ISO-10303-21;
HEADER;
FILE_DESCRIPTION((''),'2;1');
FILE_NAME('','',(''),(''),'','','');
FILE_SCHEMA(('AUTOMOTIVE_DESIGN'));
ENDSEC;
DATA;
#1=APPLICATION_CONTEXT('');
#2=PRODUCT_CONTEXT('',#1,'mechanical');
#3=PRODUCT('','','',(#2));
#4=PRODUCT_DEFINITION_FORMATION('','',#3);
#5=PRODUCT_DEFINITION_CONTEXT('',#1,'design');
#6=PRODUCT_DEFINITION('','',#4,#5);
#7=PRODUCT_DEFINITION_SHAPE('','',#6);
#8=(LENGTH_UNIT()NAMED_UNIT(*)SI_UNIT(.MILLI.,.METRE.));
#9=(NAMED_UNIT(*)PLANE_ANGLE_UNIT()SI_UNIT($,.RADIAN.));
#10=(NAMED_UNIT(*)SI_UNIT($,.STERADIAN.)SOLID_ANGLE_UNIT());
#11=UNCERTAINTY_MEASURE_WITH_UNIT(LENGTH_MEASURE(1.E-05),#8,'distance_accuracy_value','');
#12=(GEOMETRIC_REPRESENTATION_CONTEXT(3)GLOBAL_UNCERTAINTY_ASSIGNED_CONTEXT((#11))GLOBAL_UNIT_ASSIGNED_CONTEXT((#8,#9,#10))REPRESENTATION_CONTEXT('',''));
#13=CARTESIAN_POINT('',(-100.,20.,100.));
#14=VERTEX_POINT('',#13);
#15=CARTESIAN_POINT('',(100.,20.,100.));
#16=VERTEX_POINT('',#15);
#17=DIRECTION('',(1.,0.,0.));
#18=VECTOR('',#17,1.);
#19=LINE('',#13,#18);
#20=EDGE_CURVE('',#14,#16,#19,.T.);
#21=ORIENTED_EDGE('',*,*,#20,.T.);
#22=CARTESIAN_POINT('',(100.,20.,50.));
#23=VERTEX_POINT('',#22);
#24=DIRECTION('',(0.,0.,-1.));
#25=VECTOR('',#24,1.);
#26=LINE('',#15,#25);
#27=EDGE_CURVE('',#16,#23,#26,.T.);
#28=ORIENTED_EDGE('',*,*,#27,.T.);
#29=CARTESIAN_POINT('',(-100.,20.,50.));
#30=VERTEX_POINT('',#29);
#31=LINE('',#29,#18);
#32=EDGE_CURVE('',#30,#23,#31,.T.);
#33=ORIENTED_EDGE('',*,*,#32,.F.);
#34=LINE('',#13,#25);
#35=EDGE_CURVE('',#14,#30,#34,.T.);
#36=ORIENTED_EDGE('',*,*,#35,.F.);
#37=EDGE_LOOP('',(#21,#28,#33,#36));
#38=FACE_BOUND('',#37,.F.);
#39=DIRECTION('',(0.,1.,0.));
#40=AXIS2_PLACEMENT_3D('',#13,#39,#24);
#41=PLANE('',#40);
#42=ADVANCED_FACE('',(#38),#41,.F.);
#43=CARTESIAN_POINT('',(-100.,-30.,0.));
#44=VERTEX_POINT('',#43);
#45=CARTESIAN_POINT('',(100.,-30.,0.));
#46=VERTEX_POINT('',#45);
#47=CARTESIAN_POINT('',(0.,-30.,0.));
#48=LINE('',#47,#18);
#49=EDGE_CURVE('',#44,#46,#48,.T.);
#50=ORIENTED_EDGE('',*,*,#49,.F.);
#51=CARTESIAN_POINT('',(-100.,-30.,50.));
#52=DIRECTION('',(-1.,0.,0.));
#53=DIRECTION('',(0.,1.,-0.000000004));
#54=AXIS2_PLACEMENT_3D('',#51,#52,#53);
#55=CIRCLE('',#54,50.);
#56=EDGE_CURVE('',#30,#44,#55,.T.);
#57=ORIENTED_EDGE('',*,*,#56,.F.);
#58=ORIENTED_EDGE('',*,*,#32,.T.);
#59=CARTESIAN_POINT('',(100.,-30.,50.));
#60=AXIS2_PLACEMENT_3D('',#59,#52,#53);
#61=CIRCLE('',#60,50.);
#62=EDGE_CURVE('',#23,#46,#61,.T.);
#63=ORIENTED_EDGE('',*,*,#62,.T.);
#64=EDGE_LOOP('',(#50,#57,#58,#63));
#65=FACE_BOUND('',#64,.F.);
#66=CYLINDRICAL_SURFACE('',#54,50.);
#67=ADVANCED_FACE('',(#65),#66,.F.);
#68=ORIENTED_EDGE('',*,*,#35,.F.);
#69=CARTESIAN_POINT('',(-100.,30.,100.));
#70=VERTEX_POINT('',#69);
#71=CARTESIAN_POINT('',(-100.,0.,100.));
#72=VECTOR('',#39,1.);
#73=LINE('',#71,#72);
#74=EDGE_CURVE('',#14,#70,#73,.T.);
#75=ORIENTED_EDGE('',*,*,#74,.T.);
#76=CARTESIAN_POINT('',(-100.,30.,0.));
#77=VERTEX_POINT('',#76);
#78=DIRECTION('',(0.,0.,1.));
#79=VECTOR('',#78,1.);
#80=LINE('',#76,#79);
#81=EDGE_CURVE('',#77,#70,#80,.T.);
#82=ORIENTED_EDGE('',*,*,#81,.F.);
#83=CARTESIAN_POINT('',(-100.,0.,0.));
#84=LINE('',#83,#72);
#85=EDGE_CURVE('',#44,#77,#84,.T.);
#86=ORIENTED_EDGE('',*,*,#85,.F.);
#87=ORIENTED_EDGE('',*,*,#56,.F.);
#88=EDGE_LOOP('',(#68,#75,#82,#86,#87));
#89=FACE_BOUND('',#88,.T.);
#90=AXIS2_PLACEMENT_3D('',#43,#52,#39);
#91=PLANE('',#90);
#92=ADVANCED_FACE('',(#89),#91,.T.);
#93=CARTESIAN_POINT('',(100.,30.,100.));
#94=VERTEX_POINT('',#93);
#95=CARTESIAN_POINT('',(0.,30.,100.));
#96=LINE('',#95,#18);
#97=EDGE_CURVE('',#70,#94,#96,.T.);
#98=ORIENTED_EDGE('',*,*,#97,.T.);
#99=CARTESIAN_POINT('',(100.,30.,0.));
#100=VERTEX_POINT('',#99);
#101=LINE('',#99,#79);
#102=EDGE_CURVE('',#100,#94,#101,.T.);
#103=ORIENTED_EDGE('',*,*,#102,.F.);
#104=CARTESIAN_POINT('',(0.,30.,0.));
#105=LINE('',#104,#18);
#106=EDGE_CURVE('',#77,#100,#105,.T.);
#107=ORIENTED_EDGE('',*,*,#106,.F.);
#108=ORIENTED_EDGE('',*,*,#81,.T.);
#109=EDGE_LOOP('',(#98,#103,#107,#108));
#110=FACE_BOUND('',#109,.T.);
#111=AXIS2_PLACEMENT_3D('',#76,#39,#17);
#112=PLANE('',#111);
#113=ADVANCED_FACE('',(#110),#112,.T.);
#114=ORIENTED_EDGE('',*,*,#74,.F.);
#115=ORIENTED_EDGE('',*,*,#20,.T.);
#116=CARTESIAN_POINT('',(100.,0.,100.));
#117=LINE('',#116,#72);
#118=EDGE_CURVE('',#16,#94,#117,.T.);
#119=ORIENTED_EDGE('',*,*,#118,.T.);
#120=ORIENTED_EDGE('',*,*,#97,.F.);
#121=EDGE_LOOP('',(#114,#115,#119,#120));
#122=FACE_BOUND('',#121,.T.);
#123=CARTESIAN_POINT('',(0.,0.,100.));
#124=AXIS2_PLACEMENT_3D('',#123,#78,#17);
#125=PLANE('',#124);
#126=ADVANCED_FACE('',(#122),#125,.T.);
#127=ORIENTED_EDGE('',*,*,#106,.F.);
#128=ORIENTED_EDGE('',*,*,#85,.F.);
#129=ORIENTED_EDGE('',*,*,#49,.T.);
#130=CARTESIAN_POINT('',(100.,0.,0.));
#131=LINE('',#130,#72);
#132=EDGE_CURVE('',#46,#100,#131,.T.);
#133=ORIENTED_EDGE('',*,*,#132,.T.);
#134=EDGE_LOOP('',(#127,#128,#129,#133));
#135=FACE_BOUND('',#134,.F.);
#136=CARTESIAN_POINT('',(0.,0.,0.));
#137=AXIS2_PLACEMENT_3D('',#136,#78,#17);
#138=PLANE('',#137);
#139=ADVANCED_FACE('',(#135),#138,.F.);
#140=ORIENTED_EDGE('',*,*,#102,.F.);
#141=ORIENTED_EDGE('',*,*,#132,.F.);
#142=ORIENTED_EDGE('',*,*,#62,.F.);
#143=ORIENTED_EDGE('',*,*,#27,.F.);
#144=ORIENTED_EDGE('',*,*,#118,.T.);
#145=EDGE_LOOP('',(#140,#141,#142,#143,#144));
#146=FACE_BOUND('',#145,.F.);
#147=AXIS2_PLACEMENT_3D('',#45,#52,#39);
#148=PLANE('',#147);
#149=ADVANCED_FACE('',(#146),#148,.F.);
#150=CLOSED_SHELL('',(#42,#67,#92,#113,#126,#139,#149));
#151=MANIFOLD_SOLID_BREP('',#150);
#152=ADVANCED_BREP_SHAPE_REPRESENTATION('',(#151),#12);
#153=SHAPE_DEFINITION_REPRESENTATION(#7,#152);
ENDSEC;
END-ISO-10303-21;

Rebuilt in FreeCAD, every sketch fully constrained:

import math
import FreeCAD as App
import Part
import Sketcher

V = App.Vector
Q = App.Units.Quantity


def add_polygon(sketch, points):
    """Adds a closed chain of lines whose ends are joined by coincident constraints."""
    first, n = sketch.GeometryCount, len(points)
    for a, b in zip(points, points[1:] + points[:1]):
        sketch.addGeometry(Part.LineSegment(App.Vector(*a, 0), App.Vector(*b, 0)), False)
    for i in range(n):
        sketch.addConstraint(Sketcher.Constraint("Coincident", first + i, 2, first + (i + 1) % n, 1))

doc = App.newDocument("Part")
body = doc.addObject("PartDesign::Body", "Body")

# Sketch on XY plane
sketch1 = body.newObject("Sketcher::SketchObject", "Sketch")
sketch1.AttachmentSupport = (doc.getObject("XY_Plane"), [""])
sketch1.MapMode = "FlatFace"
add_polygon(sketch1, [(-100, 30), (-100, -30), (100, -30), (100, 30)])  # lines 0-3
sketch1.addConstraint([
    Sketcher.Constraint("Vertical", 0),
    Sketcher.Constraint("Horizontal", 1),
    Sketcher.Constraint("Vertical", 2),
    Sketcher.Constraint("Horizontal", 3),
    Sketcher.Constraint("Symmetric", 0, 2, 2, 2, -1, 1),
    Sketcher.Constraint("DistanceX", 1, 1, 1, 2, Q("200 mm")),
    Sketcher.Constraint("DistanceY", 0, 2, 0, 1, Q("60 mm")),
])
pad1 = body.newObject("PartDesign::Pad", "Pad")
pad1.Profile = sketch1
pad1.Length = 100

# Sketch on YZ plane
sketch2 = body.newObject("Sketcher::SketchObject", "Sketch001")
sketch2.AttachmentSupport = (doc.getObject("YZ_Plane"), [""])
sketch2.MapMode = "FlatFace"
sketch2.AttachmentOffset = App.Placement(V(0, 0, -100), App.Rotation())
sketch2.addGeometry([
    Part.LineSegment(V(-30, 100, 0), V(20, 100, 0)),
    Part.LineSegment(V(20, 100, 0), V(20, 50, 0)),
    Part.ArcOfCircle(Part.Circle(V(-30, 50, 0), V(0, 0, 1), 50), math.radians(-90), math.radians(0)),
    Part.LineSegment(V(-30, 0, 0), V(-30, 100, 0)),
], False)
sketch2.addConstraint([
    Sketcher.Constraint("Coincident", 0, 2, 1, 1),
    Sketcher.Constraint("Tangent", 1, 2, 2, 2),
    Sketcher.Constraint("Coincident", 2, 1, 3, 1),
    Sketcher.Constraint("Coincident", 3, 2, 0, 1),
    Sketcher.Constraint("Horizontal", 0),
    Sketcher.Constraint("Vertical", 1),
    Sketcher.Constraint("Vertical", 3),
    Sketcher.Constraint("PointOnObject", 2, 1, -1),
    Sketcher.Constraint("Equal", 0, 1),
    Sketcher.Constraint("Radius", 2, Q("50 mm")),
    Sketcher.Constraint("DistanceX", 0, 1, 0, 2, Q("50 mm")),
    Sketcher.Constraint("DistanceX", 2, 3, -1, 1, Q("30 mm")),
])
pocket1 = body.newObject("PartDesign::Pocket", "Pocket")
pocket1.Profile = sketch2
pocket1.Length = 200
pocket1.Reversed = True

doc.recompute()
